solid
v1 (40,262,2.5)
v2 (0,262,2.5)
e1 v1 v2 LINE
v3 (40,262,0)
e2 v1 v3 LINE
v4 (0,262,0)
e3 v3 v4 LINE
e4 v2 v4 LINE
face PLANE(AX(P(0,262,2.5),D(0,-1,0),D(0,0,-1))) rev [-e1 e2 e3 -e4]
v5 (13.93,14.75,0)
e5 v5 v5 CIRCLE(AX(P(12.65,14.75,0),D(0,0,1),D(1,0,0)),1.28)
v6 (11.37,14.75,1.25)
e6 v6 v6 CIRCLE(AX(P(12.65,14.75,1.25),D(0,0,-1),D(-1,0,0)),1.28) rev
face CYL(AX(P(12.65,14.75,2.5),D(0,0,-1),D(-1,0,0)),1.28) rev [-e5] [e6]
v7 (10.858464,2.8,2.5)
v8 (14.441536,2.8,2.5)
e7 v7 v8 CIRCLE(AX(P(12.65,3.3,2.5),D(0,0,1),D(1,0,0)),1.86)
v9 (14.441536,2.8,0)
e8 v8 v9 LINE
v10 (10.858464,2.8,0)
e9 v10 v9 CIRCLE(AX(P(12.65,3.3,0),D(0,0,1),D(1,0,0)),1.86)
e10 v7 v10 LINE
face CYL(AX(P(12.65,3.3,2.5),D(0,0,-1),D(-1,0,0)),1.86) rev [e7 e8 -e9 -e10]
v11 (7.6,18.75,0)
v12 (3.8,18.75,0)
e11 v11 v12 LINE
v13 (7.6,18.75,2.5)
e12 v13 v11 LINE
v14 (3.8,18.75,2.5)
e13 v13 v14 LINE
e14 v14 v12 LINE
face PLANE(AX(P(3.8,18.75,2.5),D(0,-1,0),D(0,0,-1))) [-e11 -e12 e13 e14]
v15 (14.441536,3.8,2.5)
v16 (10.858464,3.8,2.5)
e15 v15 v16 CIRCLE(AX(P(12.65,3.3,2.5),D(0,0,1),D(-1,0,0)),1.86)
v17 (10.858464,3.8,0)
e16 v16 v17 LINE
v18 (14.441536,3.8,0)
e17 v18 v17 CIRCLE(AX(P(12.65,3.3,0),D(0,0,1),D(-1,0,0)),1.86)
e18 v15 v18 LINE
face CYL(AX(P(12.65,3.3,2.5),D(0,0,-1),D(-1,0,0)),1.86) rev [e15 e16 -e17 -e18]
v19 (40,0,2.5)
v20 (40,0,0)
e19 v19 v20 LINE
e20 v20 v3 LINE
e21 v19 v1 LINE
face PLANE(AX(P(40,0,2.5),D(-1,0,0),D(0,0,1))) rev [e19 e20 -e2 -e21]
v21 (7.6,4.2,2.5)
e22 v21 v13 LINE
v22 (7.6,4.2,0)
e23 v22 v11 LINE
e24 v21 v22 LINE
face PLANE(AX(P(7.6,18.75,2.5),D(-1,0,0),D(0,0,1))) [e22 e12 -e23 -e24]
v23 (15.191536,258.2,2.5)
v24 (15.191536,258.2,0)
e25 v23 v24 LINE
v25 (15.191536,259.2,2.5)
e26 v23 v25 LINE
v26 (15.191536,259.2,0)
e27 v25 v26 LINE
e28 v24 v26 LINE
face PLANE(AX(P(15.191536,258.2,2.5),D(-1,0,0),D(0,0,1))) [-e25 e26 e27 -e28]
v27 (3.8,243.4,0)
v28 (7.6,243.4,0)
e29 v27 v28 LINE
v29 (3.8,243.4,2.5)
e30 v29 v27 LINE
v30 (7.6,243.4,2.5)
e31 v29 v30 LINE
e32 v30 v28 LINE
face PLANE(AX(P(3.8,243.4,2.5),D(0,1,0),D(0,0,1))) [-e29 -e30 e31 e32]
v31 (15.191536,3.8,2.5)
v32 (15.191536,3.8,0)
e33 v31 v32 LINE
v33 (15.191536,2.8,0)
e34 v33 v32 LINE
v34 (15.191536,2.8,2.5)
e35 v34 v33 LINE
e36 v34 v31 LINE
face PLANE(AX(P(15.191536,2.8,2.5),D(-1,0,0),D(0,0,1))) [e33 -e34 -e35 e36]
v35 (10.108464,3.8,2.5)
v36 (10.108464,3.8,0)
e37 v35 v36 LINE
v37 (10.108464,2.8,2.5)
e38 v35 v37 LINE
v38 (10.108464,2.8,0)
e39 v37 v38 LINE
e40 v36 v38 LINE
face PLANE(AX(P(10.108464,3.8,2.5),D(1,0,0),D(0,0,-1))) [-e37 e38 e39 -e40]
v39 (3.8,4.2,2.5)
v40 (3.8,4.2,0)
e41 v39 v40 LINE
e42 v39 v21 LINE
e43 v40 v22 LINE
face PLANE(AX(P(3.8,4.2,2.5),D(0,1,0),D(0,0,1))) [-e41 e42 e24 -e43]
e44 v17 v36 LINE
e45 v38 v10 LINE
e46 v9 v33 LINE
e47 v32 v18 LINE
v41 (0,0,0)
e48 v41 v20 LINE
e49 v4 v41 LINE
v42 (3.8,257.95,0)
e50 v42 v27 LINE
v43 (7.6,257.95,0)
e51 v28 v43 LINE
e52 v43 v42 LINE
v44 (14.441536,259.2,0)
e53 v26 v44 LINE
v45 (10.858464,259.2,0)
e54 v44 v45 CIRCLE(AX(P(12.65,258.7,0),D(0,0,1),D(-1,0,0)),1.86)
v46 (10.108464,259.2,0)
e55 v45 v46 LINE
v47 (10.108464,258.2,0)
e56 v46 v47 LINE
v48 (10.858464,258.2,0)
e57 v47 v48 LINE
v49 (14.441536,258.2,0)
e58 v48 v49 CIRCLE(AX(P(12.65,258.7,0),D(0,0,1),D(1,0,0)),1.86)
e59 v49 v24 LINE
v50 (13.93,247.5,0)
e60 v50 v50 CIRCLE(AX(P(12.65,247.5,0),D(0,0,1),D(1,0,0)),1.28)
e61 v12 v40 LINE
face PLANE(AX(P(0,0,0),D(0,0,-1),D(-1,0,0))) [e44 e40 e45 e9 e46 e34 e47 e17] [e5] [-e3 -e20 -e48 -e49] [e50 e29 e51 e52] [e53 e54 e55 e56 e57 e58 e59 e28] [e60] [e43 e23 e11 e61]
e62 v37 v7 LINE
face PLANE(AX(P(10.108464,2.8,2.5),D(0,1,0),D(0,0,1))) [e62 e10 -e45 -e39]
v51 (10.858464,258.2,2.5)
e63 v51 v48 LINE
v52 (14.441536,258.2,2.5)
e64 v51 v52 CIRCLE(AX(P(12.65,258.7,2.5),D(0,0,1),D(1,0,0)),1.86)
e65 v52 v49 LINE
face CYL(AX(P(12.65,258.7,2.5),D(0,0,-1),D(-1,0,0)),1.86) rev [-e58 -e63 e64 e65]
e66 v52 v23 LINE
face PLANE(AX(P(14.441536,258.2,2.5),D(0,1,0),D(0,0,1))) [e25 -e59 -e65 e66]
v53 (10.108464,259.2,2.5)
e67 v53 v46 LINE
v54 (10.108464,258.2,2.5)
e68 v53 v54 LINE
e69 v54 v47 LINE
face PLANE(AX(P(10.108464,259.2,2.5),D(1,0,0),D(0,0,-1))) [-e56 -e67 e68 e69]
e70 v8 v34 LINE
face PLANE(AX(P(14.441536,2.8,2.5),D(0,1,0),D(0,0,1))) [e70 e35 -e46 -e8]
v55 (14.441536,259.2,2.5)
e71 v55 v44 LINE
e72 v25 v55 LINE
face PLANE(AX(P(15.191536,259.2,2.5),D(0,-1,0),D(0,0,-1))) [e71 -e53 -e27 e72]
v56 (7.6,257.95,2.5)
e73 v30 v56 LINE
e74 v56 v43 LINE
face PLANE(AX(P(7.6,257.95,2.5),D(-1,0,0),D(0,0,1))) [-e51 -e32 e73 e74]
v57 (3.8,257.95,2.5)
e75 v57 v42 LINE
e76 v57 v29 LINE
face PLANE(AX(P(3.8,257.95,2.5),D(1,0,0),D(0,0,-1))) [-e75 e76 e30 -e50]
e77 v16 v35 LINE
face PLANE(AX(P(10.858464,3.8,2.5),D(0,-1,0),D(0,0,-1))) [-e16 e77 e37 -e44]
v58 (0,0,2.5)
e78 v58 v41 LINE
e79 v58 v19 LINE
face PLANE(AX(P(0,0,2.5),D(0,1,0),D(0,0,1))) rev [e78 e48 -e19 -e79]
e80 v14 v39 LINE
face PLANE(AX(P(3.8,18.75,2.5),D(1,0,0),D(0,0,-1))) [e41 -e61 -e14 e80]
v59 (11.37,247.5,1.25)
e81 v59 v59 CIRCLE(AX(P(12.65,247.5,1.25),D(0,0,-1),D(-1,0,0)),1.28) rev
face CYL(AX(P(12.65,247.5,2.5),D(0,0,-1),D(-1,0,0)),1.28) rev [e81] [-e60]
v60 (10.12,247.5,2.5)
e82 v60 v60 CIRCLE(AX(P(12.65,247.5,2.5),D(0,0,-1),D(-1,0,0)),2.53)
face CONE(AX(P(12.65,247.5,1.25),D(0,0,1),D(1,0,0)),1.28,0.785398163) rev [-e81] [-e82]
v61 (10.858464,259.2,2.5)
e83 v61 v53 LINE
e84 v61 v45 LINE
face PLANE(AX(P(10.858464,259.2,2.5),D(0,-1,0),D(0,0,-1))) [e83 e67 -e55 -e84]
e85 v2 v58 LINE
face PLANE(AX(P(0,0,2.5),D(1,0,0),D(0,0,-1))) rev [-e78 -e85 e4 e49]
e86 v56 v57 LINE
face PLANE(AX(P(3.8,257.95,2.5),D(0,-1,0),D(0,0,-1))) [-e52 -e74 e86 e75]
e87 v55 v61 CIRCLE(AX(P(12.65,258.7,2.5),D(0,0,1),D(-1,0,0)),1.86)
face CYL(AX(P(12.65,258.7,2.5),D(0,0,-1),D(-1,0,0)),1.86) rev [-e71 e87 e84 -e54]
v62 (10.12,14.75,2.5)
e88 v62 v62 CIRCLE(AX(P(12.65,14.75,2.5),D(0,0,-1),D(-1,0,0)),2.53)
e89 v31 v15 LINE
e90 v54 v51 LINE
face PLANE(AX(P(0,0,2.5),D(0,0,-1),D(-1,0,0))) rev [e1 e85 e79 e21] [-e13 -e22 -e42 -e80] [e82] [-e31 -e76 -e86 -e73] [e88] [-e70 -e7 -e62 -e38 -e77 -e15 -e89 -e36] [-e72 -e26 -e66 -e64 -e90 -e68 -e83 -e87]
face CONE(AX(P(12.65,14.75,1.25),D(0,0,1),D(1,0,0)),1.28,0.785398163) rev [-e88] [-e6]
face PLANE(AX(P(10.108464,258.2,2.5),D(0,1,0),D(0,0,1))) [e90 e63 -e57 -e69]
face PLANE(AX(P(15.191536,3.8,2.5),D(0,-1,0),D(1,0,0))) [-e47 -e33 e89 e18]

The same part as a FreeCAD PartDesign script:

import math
import FreeCAD as App
import Part
import Sketcher

V = App.Vector


def edges_at(feature, points):
    """Names of the edges that pass closest to the given points."""
    edges = feature.Shape.Edges
    near = lambda p: min(range(len(edges)), key=lambda i: edges[i].distToShape(Part.Vertex(*p))[0])
    return sorted({f"Edge{near(p) + 1}" for p in points})


def add_polygon(sketch, points):
    """Adds a closed chain of lines whose ends are joined by coincident constraints."""
    first, n = sketch.GeometryCount, len(points)
    for a, b in zip(points, points[1:] + points[:1]):
        sketch.addGeometry(Part.LineSegment(App.Vector(*a, 0), App.Vector(*b, 0)), False)
    for i in range(n):
        sketch.addConstraint(Sketcher.Constraint("Coincident", first + i, 2, first + (i + 1) % n, 1))

doc = App.newDocument("Part")
body = doc.addObject("PartDesign::Body", "Body")

# Sketch on XY plane
sketch1 = doc.addObject("Sketcher::SketchObject", "Sketch")
body.addObject(sketch1)
sketch1.AttachmentSupport = (doc.XY_Plane, [""])
sketch1.MapMode = "FlatFace"
add_polygon(sketch1, [(0, 262), (0, 0), (40, 0), (40, 262)])  # lines 0-3
add_polygon(sketch1, [(7.6, 4.2), (3.8, 4.2), (3.8, 18.8), (7.6, 18.8)])  # lines 4-7
sketch1.addGeometry(Part.LineSegment(V(10.1, 3.8, 0), V(10.9, 3.8, 0)), False)  # 8
sketch1.addGeometry(Part.ArcOfCircle(Part.Circle(V(12.7, 3.3, 0), V(0, 0, 1), 1.9), math.radians(16), math.radians(164)), False)  # 9
sketch1.addGeometry(Part.LineSegment(V(14.4, 3.8, 0), V(15.2, 3.8, 0)), False)  # 10
sketch1.addGeometry(Part.LineSegment(V(15.2, 3.8, 0), V(15.2, 2.8, 0)), False)  # 11
sketch1.addGeometry(Part.LineSegment(V(15.2, 2.8, 0), V(14.4, 2.8, 0)), False)  # 12
sketch1.addGeometry(Part.ArcOfCircle(Part.Circle(V(12.7, 3.3, 0), V(0, 0, 1), 1.9), math.radians(-164), math.radians(-16)), False)  # 13
sketch1.addGeometry(Part.LineSegment(V(10.9, 2.8, 0), V(10.1, 2.8, 0)), False)  # 14
sketch1.addGeometry(Part.LineSegment(V(10.1, 2.8, 0), V(10.1, 3.8, 0)), False)  # 15
sketch1.addGeometry(Part.Circle(V(12.7, 14.8, 0), V(0, 0, 1), 1.3), False)  # 16
add_polygon(sketch1, [(7.6, 243.4), (3.8, 243.4), (3.8, 257.9), (7.6, 257.9)])  # lines 17-20
sketch1.addGeometry(Part.Circle(V(12.7, 247.5, 0), V(0, 0, 1), 1.3), False)  # 21
sketch1.addGeometry(Part.LineSegment(V(10.1, 259.2, 0), V(10.9, 259.2, 0)), False)  # 22
sketch1.addGeometry(Part.ArcOfCircle(Part.Circle(V(12.7, 258.7, 0), V(0, 0, 1), 1.9), math.radians(16), math.radians(164)), False)  # 23
sketch1.addGeometry(Part.LineSegment(V(14.4, 259.2, 0), V(15.2, 259.2, 0)), False)  # 24
sketch1.addGeometry(Part.LineSegment(V(15.2, 259.2, 0), V(15.2, 258.2, 0)), False)  # 25
sketch1.addGeometry(Part.LineSegment(V(15.2, 258.2, 0), V(14.4, 258.2, 0)), False)  # 26
sketch1.addGeometry(Part.ArcOfCircle(Part.Circle(V(12.7, 258.7, 0), V(0, 0, 1), 1.9), math.radians(-164), math.radians(-16)), False)  # 27
sketch1.addGeometry(Part.LineSegment(V(10.9, 258.2, 0), V(10.1, 258.2, 0)), False)  # 28
sketch1.addGeometry(Part.LineSegment(V(10.1, 258.2, 0), V(10.1, 259.2, 0)), False)  # 29
sketch1.addConstraint([
    Sketcher.Constraint("Coincident", 8, 2, 9, 2),
    Sketcher.Constraint("Coincident", 9, 1, 10, 1),
    Sketcher.Constraint("Coincident", 10, 2, 11, 1),
    Sketcher.Constraint("Coincident", 11, 2, 12, 1),
    Sketcher.Constraint("Coincident", 12, 2, 13, 2),
    Sketcher.Constraint("Coincident", 13, 1, 14, 1),
    Sketcher.Constraint("Coincident", 14, 2, 15, 1),
    Sketcher.Constraint("Coincident", 15, 2, 8, 1),
    Sketcher.Constraint("Coincident", 22, 2, 23, 2),
    Sketcher.Constraint("Coincident", 23, 1, 24, 1),
    Sketcher.Constraint("Coincident", 24, 2, 25, 1),
    Sketcher.Constraint("Coincident", 25, 2, 26, 1),
    Sketcher.Constraint("Coincident", 26, 2, 27, 2),
    Sketcher.Constraint("Coincident", 27, 1, 28, 1),
    Sketcher.Constraint("Coincident", 28, 2, 29, 1),
    Sketcher.Constraint("Coincident", 29, 2, 22, 1),
    Sketcher.Constraint("Vertical", 0),
    Sketcher.Constraint("Horizontal", 1),
    Sketcher.Constraint("Vertical", 2),
    Sketcher.Constraint("Horizontal", 3),
    Sketcher.Constraint("Horizontal", 4),
    Sketcher.Constraint("Vertical", 5),
    Sketcher.Constraint("Horizontal", 6),
    Sketcher.Constraint("Vertical", 7),
    Sketcher.Constraint("Horizontal", 8),
    Sketcher.Constraint("Horizontal", 10),
    Sketcher.Constraint("Vertical", 11),
    Sketcher.Constraint("Horizontal", 12),
    Sketcher.Constraint("Horizontal", 14),
    Sketcher.Constraint("Vertical", 15),
    Sketcher.Constraint("Horizontal", 17),
    Sketcher.Constraint("Vertical", 18),
    Sketcher.Constraint("Horizontal", 19),
    Sketcher.Constraint("Vertical", 20),
    Sketcher.Constraint("Horizontal", 22),
    Sketcher.Constraint("Horizontal", 24),
    Sketcher.Constraint("Vertical", 25),
    Sketcher.Constraint("Horizontal", 26),
    Sketcher.Constraint("Horizontal", 28),
    Sketcher.Constraint("Vertical", 29),
    Sketcher.Constraint("Coincident", 0, 2, -1, 1),
    Sketcher.Constraint("Coincident", 13, 3, 9, 3),
    Sketcher.Constraint("Coincident", 27, 3, 23, 3),
    Sketcher.Constraint("Equal", 9, 13),
    Sketcher.Constraint("Equal", 16, 21),
    Sketcher.Constraint("Equal", 13, 23),
    Sketcher.Constraint("Equal", 23, 27),
    Sketcher.Constraint("Horizontal", 8, 2, 9, 1),
    Sketcher.Constraint("Horizontal", 12, 2, 13, 1),
    Sketcher.Constraint("Horizontal", 22, 2, 23, 1),
    Sketcher.Constraint("Horizontal", 26, 2, 27, 1),
    Sketcher.Constraint("Vertical", 13, 3, 16, 3),
    Sketcher.Constraint("Vertical", 16, 3, 21, 3),
    Sketcher.Constraint("Vertical", 21, 3, 23, 3),
    Sketcher.Constraint("Vertical", 9, 1, 12, 2),
    Sketcher.Constraint("Vertical", 5, 2, 17, 2),
    Sketcher.Constraint("Vertical", 7, 2, 19, 2),
    Sketcher.Constraint("Vertical", 13, 1, 22, 2),
    Sketcher.Constraint("Vertical", 11, 2, 24, 2),
    Sketcher.Constraint("Vertical", 23, 1, 26, 2),
    Sketcher.Constraint("Vertical", 15, 2, 28, 2),
    Sketcher.Constraint("Equal", 8, 10),
    Sketcher.Constraint("Equal", 7, 18),
    Sketcher.Constraint("Diameter", 16, 2.56),
    Sketcher.Constraint("DistanceX", 1, 1, 1, 2, 40.0),
    Sketcher.Constraint("DistanceY", 0, 2, 0, 1, 262.0),
    Sketcher.Constraint("DistanceY", 11, 2, 11, 1, 1.0),
    Sketcher.Constraint("Radius", 9, 1.86),
    Sketcher.Constraint("DistanceX", 4, 2, 4, 1, 3.8),
    Sketcher.Constraint("DistanceY", 16, 3, 5, 2, 4.0),
    Sketcher.Constraint("DistanceX", 8, 1, 8, 2, 0.75),
    Sketcher.Constraint("DistanceY", 5, 1, 5, 2, 14.55),
    Sketcher.Constraint("DistanceY", -1, 1, 9, 3, 3.3),
    Sketcher.Constraint("DistanceY", -1, 1, 21, 3, 247.5),
    Sketcher.Constraint("DistanceY", -1, 1, 23, 3, 258.7),
    Sketcher.Constraint("DistanceX", -1, 1, 4, 2, 3.8),
    Sketcher.Constraint("DistanceY", -1, 1, 4, 2, 4.2),
    Sketcher.Constraint("DistanceY", -1, 1, 17, 2, 243.4),
    Sketcher.Constraint("DistanceX", -1, 1, 9, 3, 12.65),
])
pad1 = doc.addObject("PartDesign::Pad", "Pad")
body.addObject(pad1)
pad1.Profile = sketch1
pad1.Length = 2.5
doc.recompute()

chamfer = doc.addObject("PartDesign::Chamfer", "Chamfer")
body.addObject(chamfer)
chamfer.Base = (pad1, edges_at(pad1, [(11.37, 247.5, 2.5)]))
chamfer.Size = 1.25
doc.recompute()

chamfer2 = doc.addObject("PartDesign::Chamfer", "Chamfer001")
body.addObject(chamfer2)
chamfer2.Base = (chamfer, edges_at(chamfer, [(11.37, 14.75, 2.5)]))
chamfer2.Size = 1.25

doc.recompute()
